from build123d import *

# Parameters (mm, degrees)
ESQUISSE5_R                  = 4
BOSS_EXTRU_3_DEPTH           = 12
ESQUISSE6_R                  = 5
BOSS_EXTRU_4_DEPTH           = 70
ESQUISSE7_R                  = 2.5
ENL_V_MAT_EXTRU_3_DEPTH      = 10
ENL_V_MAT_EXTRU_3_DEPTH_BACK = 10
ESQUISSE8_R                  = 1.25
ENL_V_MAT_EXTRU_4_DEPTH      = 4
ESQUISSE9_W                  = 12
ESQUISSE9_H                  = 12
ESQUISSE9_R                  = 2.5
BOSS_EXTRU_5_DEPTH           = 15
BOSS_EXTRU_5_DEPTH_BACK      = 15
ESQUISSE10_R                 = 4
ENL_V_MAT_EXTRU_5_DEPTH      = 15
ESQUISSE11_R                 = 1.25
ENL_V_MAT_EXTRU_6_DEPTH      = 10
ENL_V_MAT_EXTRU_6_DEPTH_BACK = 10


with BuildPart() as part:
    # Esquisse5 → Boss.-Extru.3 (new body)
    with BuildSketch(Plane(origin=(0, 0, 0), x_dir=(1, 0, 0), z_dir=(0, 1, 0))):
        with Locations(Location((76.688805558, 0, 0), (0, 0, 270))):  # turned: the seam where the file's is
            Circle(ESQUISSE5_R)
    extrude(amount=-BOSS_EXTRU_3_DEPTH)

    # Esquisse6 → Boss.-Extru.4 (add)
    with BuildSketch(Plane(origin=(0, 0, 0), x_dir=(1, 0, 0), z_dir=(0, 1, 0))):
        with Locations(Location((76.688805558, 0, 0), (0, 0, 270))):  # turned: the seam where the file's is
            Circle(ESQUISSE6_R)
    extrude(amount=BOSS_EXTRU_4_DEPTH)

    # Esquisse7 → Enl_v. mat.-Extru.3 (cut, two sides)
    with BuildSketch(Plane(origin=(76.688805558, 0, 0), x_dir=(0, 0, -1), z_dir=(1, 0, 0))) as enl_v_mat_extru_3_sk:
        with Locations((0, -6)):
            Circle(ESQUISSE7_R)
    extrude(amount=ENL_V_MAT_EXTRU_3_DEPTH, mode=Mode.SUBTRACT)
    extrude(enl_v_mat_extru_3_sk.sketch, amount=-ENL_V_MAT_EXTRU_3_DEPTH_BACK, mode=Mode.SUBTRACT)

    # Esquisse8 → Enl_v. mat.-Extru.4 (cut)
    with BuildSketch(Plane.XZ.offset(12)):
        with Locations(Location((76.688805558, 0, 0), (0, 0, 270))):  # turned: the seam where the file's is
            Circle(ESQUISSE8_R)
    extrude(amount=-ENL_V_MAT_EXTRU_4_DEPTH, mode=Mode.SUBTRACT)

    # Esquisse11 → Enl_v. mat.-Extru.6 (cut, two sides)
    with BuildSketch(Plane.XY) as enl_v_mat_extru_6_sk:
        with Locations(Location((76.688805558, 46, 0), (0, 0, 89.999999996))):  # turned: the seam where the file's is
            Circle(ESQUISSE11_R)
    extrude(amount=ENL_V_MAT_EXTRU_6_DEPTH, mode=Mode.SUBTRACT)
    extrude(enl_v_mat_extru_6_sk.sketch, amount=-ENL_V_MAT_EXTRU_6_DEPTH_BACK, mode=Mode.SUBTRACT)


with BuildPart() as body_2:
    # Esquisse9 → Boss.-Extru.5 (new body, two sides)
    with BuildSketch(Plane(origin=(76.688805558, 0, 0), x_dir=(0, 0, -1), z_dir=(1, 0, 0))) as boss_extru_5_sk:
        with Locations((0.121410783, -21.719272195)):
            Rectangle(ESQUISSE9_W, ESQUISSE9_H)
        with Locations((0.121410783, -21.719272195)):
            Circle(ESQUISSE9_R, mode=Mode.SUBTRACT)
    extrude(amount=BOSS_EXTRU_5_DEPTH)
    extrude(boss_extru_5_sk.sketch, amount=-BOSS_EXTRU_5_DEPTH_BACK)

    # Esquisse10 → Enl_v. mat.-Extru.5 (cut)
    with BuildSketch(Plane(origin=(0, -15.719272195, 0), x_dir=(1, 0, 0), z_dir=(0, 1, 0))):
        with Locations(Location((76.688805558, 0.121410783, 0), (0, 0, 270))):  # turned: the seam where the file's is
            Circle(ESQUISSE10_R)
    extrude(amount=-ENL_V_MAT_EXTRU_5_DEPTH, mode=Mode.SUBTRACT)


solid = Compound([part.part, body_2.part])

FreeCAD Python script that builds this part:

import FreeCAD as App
import Part
import Sketcher
from FreeCAD import Vector
Q = App.Units.Quantity


def add_polygon(sketch, points):
    """Adds a closed chain of lines whose ends are joined by coincident constraints."""
    first, n = sketch.GeometryCount, len(points)
    for a, b in zip(points, points[1:] + points[:1]):
        sketch.addGeometry(Part.LineSegment(App.Vector(*a, 0), App.Vector(*b, 0)), False)
    for i in range(n):
        sketch.addConstraint(Sketcher.Constraint("Coincident", first + i, 2, first + (i + 1) % n, 1))

doc = App.newDocument("Part")
body = doc.addObject("PartDesign::Body", "Body")

sketch1 = body.newObject("Sketcher::SketchObject", "Sketch")
sketch1.AttachmentSupport = (doc.getObject("XZ_Plane"), [""])
sketch1.MapMode = "FlatFace"
sketch1.addGeometry(Part.Circle(Vector(76.7, 0, 0), Vector(0, 0, 1), 4), False)
sketch1.addConstraint([
    Sketcher.Constraint("PointOnObject", 0, 3, -1),
    Sketcher.Constraint("Diameter", 0, Q("8 mm")),
    Sketcher.Constraint("DistanceX", -1, 1, 0, 3, Q("76.688806 mm")),
])
pad1 = body.newObject("PartDesign::Pad", "Pad")
pad1.Profile = sketch1
pad1.Length = 12

sketch2 = body.newObject("Sketcher::SketchObject", "Sketch001")
sketch2.AttachmentSupport = (doc.getObject("XZ_Plane"), [""])
sketch2.MapMode = "FlatFace"
sketch2.addGeometry(Part.Circle(Vector(77, 0, 0), Vector(0, 0, 1), 5), False)
sketch2.addConstraint([
    Sketcher.Constraint("PointOnObject", 0, 3, -1),
    Sketcher.Constraint("Diameter", 0, Q("10 mm")),
    Sketcher.Constraint("DistanceX", -1, 1, 0, 3, Q("76.688806 mm")),
])
pad2 = body.newObject("PartDesign::Pad", "Pad001")
pad2.Profile = sketch2
pad2.Length = 70
pad2.Reversed = True

sketch3 = body.newObject("Sketcher::SketchObject", "Sketch002")
sketch3.AttachmentSupport = (doc.getObject("YZ_Plane"), [""])
sketch3.MapMode = "FlatFace"
sketch3.AttachmentOffset = App.Placement(Vector(0, 0, 76.688806), App.Rotation())
sketch3.addGeometry(Part.Circle(Vector(-6, 0, 0), Vector(0, 0, 1), 2.5), False)
sketch3.addConstraint([
    Sketcher.Constraint("PointOnObject", 0, 3, -1),
    Sketcher.Constraint("Diameter", 0, Q("5 mm")),
    Sketcher.Constraint("DistanceX", 0, 3, -1, 1, Q("6 mm")),
])
pocket1 = body.newObject("PartDesign::Pocket", "Pocket")
pocket1.Profile = sketch3
pocket1.Type = "ThroughAll"
pocket1.Midplane = True

sketch4 = body.newObject("Sketcher::SketchObject", "Sketch003")
sketch4.AttachmentSupport = (doc.getObject("XZ_Plane"), [""])
sketch4.MapMode = "FlatFace"
sketch4.AttachmentOffset = App.Placement(Vector(0, 0, 12), App.Rotation())
sketch4.addGeometry(Part.Circle(Vector(76.7, 0, 0), Vector(0, 0, 1), 1.2), False)
sketch4.addConstraint([
    Sketcher.Constraint("PointOnObject", 0, 3, -1),
    Sketcher.Constraint("Diameter", 0, Q("2.5 mm")),
    Sketcher.Constraint("DistanceX", -1, 1, 0, 3, Q("76.688806 mm")),
])
pocket2 = body.newObject("PartDesign::Pocket", "Pocket001")
pocket2.Profile = sketch4
pocket2.Length = 4

sketch5 = body.newObject("Sketcher::SketchObject", "Sketch004")
sketch5.AttachmentSupport = (doc.getObject("XY_Plane"), [""])
sketch5.MapMode = "FlatFace"
sketch5.addGeometry(Part.Circle(Vector(76.7, 46, 0), Vector(0, 0, 1), 1.2), False)
sketch5.addConstraint([
    Sketcher.Constraint("Diameter", 0, Q("2.5 mm")),
    Sketcher.Constraint("DistanceY", -1, 1, 0, 3, Q("46 mm")),
    Sketcher.Constraint("DistanceX", -1, 1, 0, 3, Q("76.688806 mm")),
])
pocket3 = body.newObject("PartDesign::Pocket", "Pocket002")
pocket3.Profile = sketch5
pocket3.Type = "ThroughAll"
pocket3.Midplane = True
body2 = doc.addObject("PartDesign::Body", "Body001")

sketch6 = body2.newObject("Sketcher::SketchObject", "Sketch005")
sketch6.AttachmentSupport = (doc.getObject("YZ_Plane001"), [""])
sketch6.MapMode = "FlatFace"
sketch6.AttachmentOffset = App.Placement(Vector(0, 0, 76.688806), App.Rotation())
add_polygon(sketch6, [(-15.7, 5.9), (-27.7, 5.9), (-27.7, -6.1), (-15.7, -6.1)])
sketch6.addGeometry(Part.Circle(Vector(-21.7, -0.1, 0), Vector(0, 0, 1), 2.5), False)
sketch6.addConstraint([
    Sketcher.Constraint("Horizontal", 0),
    Sketcher.Constraint("Vertical", 1),
    Sketcher.Constraint("Horizontal", 2),
    Sketcher.Constraint("Vertical", 3),
    Sketcher.Constraint("Equal", 2, 1),
    Sketcher.Constraint("Diameter", 4, Q("5 mm")),
    Sketcher.Constraint("DistanceX", 0, 2, 0, 1, Q("12 mm")),
    Sketcher.Constraint("DistanceX", 0, 2, 4, 3, Q("6 mm")),
    Sketcher.Constraint("DistanceY", 4, 3, 0, 2, Q("6 mm")),
    Sketcher.Constraint("DistanceY", 4, 3, -1, 1, Q("0.121411 mm")),
    Sketcher.Constraint("DistanceX", 4, 3, -1, 1, Q("21.719272 mm")),
])
pad3 = body2.newObject("PartDesign::Pad", "Pad002")
pad3.Profile = sketch6
pad3.Type = "TwoLengths"
pad3.Length = 15
pad3.Length2 = 15

sketch7 = body2.newObject("Sketcher::SketchObject", "Sketch006")
sketch7.AttachmentSupport = (doc.getObject("XZ_Plane001"), [""])
sketch7.MapMode = "FlatFace"
sketch7.AttachmentOffset = App.Placement(Vector(0, 0, 15.719272), App.Rotation())
sketch7.addGeometry(Part.Circle(Vector(76.7, -0.1, 0), Vector(0, 0, 1), 4), False)
sketch7.addConstraint([
    Sketcher.Constraint("Diameter", 0, Q("8 mm")),
    Sketcher.Constraint("DistanceY", 0, 3, -1, 1, Q("0.121411 mm")),
    Sketcher.Constraint("DistanceX", -1, 1, 0, 3, Q("76.688806 mm")),
])
pocket4 = body2.newObject("PartDesign::Pocket", "Pocket003")
pocket4.Profile = sketch7
pocket4.Length = 15
pocket4.Reversed = True

doc.recompute()
